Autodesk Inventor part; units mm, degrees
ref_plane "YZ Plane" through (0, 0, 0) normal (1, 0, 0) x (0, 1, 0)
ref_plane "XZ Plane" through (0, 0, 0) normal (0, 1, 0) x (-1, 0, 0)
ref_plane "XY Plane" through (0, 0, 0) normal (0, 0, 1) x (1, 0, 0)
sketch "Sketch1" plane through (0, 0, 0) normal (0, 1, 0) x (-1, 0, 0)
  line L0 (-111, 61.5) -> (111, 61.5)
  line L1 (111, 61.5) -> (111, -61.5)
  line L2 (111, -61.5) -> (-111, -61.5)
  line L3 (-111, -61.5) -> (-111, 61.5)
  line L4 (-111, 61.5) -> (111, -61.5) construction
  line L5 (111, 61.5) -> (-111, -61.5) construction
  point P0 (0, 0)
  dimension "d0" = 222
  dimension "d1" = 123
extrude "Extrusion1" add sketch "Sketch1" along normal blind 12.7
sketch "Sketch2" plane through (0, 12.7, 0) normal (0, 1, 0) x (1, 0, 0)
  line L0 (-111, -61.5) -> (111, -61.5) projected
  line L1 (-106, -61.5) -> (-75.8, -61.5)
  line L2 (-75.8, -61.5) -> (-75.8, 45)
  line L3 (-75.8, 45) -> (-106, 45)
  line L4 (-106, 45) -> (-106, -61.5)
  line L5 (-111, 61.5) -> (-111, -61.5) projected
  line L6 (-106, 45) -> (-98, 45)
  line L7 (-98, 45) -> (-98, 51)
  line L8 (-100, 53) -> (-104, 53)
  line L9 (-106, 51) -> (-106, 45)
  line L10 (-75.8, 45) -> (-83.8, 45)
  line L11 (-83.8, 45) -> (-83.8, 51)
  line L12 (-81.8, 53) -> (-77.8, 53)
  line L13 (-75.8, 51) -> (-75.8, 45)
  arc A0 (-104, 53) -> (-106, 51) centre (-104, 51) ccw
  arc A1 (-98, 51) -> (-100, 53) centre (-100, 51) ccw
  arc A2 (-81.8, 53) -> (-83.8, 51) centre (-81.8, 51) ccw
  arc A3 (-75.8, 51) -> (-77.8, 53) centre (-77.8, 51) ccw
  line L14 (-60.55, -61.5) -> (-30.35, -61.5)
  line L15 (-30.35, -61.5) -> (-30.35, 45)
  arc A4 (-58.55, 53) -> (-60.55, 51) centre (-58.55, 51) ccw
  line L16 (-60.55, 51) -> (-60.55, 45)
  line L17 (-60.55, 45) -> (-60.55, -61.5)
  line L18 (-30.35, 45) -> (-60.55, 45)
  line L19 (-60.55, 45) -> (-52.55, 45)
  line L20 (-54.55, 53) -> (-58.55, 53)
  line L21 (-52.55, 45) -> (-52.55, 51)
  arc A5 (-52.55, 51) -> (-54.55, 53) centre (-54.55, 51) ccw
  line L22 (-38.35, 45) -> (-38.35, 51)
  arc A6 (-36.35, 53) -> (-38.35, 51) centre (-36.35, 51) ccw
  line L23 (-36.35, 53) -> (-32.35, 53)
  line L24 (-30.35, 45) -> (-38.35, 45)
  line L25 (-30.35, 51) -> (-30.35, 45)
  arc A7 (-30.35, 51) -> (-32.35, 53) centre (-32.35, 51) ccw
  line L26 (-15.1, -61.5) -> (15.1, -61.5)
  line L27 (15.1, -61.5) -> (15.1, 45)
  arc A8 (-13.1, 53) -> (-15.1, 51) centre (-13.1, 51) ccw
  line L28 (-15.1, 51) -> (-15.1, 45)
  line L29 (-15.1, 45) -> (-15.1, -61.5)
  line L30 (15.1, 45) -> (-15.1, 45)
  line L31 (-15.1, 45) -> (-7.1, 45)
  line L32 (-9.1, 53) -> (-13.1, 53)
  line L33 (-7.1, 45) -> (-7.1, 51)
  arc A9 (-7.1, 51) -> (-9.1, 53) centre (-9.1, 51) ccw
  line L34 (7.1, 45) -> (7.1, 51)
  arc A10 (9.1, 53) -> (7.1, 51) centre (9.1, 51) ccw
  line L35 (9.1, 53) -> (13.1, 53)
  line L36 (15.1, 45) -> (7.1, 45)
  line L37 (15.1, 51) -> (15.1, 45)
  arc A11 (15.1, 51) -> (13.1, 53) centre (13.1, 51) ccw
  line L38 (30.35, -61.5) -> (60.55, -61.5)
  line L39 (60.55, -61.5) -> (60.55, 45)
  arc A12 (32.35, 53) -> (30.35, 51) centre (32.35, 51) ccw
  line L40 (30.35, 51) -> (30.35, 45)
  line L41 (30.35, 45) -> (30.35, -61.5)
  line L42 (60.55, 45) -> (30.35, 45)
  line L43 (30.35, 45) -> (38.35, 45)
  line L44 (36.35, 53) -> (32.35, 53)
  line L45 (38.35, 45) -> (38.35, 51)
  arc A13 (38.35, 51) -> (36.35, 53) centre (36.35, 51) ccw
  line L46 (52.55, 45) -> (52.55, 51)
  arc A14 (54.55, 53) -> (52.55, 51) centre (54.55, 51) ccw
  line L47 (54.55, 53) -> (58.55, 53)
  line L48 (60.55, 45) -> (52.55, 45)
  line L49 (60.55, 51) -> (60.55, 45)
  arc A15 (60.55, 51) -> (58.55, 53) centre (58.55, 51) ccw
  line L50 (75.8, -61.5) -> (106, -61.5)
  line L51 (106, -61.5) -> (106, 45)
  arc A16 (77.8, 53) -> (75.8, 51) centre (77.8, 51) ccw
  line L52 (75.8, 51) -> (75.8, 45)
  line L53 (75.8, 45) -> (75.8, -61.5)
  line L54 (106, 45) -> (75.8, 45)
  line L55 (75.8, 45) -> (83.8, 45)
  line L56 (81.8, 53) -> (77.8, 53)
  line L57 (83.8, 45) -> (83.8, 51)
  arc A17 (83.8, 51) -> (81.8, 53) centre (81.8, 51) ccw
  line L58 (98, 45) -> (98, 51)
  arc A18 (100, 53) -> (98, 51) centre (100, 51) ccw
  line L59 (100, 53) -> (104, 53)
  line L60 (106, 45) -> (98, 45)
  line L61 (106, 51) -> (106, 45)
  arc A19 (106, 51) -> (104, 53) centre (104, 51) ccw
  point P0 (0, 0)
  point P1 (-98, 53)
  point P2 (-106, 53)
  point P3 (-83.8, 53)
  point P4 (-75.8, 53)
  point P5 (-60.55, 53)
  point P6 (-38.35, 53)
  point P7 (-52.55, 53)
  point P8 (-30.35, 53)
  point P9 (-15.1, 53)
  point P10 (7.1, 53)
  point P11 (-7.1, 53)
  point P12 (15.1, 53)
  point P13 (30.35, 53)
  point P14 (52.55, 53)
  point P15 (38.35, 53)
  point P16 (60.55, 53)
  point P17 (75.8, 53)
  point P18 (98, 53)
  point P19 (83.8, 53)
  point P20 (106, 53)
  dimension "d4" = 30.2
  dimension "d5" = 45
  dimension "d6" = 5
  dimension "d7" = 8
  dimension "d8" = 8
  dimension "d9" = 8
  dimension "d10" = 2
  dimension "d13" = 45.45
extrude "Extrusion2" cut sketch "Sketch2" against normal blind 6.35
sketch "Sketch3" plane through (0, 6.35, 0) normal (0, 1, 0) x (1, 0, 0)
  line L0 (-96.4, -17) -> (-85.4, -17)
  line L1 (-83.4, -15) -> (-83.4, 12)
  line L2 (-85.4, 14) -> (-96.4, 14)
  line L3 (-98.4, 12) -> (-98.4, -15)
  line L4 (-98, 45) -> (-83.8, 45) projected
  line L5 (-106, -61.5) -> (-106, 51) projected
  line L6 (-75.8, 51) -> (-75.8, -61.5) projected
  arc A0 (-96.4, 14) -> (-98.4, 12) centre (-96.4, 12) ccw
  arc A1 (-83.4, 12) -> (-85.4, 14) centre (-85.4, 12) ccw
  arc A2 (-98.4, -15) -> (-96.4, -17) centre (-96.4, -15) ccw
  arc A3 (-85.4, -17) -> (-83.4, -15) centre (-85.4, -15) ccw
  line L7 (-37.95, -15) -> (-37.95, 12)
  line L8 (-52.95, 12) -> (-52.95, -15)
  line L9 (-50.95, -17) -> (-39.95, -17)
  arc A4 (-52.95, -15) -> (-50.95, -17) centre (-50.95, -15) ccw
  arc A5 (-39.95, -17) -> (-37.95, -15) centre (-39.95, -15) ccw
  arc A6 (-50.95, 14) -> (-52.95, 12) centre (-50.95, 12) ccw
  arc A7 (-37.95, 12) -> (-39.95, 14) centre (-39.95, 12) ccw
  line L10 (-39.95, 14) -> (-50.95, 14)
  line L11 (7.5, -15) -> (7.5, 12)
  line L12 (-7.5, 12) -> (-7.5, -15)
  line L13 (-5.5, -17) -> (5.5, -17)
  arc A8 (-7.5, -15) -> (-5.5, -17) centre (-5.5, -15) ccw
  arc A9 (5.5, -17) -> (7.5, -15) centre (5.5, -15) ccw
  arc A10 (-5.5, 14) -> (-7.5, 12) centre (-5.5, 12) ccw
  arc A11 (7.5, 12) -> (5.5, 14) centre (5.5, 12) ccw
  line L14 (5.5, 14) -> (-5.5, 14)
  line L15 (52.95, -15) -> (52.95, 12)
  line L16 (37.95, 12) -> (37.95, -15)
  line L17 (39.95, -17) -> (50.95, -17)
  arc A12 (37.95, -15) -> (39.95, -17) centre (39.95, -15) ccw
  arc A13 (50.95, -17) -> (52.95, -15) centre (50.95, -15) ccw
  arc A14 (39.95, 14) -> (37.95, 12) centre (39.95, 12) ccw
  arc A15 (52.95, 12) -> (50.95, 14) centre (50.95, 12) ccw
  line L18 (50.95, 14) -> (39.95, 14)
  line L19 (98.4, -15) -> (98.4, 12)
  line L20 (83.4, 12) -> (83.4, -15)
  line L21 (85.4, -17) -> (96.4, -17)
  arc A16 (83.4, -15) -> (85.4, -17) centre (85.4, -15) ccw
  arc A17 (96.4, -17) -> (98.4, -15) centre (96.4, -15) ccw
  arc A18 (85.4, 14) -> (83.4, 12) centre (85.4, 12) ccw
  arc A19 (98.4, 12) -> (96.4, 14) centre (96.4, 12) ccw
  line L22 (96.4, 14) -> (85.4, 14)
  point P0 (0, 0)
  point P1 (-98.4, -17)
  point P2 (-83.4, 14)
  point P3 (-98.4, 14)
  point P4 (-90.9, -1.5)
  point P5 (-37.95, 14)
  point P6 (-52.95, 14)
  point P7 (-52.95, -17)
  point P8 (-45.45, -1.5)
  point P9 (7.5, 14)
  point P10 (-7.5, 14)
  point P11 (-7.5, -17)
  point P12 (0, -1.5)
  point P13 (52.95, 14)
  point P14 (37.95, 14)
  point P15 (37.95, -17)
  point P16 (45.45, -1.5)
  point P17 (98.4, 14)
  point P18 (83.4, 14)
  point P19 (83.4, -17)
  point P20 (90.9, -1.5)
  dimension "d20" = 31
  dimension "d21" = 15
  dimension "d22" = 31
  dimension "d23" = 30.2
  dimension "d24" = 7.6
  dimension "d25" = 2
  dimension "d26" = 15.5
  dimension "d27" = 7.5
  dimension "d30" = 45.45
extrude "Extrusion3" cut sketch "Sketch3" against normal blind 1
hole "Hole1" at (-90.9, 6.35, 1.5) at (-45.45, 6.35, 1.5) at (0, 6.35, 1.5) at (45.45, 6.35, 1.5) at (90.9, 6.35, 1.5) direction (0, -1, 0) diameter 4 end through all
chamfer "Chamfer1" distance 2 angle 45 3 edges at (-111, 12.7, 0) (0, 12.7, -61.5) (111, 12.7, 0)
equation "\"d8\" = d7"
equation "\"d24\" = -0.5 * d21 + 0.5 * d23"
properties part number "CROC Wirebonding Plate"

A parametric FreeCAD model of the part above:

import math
import FreeCAD as App
import Part
import Sketcher

V = App.Vector


def edges_at(feature, points):
    """Names of the edges that pass closest to the given points."""
    edges = feature.Shape.Edges
    near = lambda p: min(range(len(edges)), key=lambda i: edges[i].distToShape(Part.Vertex(*p))[0])
    return sorted({f"Edge{near(p) + 1}" for p in points})


def add_polygon(sketch, points):
    """Adds a closed chain of lines whose ends are joined by coincident constraints."""
    first, n = sketch.GeometryCount, len(points)
    for a, b in zip(points, points[1:] + points[:1]):
        sketch.addGeometry(Part.LineSegment(App.Vector(*a, 0), App.Vector(*b, 0)), False)
    for i in range(n):
        sketch.addConstraint(Sketcher.Constraint("Coincident", first + i, 2, first + (i + 1) % n, 1))

doc = App.newDocument("Part")
params = doc.addObject("Spreadsheet::Sheet", "Params")
for row, (alias, value) in enumerate([
    ("sketch1_width", "222 mm"),
    ("sketch1_height", "123 mm"),
    ("pad1_length", "12.7 mm"),
    ("sketch2_radius", "2 mm"),
    ("sketch2_width", "30.2 mm"),
    ("sketch2_width2", "4 mm"),
    ("sketch2_height", "6 mm"),
    ("sketch2_height2", "112.5 mm"),
    ("pocket1_length", "6.35 mm"),
    ("sketch3_radius", "2 mm"),
    ("sketch3_height", "27 mm"),
    ("pocket2_length", "1 mm"),
    ("sketch4_diameter", "4 mm"),
    ("hole_diameter", "4 mm"),
    ("chamfer_size", "2 mm"),
], start=1):
    params.set(f"A{row}", alias)
    params.set(f"B{row}", "=" + value)
    params.setAlias(f"B{row}", alias)

body = doc.addObject("PartDesign::Body", "Body")

# Sketch on XZ plane
sketch1 = doc.addObject("Sketcher::SketchObject", "Sketch")
body.addObject(sketch1)
sketch1.AttachmentSupport = (doc.XZ_Plane, [""])
sketch1.MapMode = "FlatFace"
add_polygon(sketch1, [(-111, 61.5), (111, 61.5), (111, -61.5), (-111, -61.5)])  # lines 0-3
sketch1.addConstraint([
    Sketcher.Constraint("Horizontal", 0),
    Sketcher.Constraint("Vertical", 1),
    Sketcher.Constraint("Horizontal", 2),
    Sketcher.Constraint("Vertical", 3),
    Sketcher.Constraint("Symmetric", 0, 2, 2, 2, -1, 1),
    Sketcher.Constraint("DistanceX", 0, 1, 0, 2, 222.0),
    Sketcher.Constraint("DistanceY", 1, 2, 1, 1, 123.0),
])
sketch1.setExpression("Constraints[9]", "Params.sketch1_width")
sketch1.setExpression("Constraints[10]", "Params.sketch1_height")
pad1 = doc.addObject("PartDesign::Pad", "Pad")
body.addObject(pad1)
pad1.Profile = sketch1
pad1.setExpression("Length", "Params.pad1_length")
pad1.Reversed = True

# Sketch on XZ plane
sketch2 = doc.addObject("Sketcher::SketchObject", "Sketch001")
body.addObject(sketch2)
sketch2.AttachmentSupport = (doc.XZ_Plane, [""])
sketch2.MapMode = "FlatFace"
sketch2.AttachmentOffset = App.Placement(V(0, 0, -12.7), App.Rotation())
sketch2.addGeometry([
    Part.LineSegment(V(-106, 61.5, 0), V(-75.8, 61.5, 0)),  # 0
    Part.LineSegment(V(-75.8, 61.5, 0), V(-75.8, -51, 0)),  # 1
    Part.ArcOfCircle(Part.Circle(V(-77.8, -51, 0), V(0, 0, 1), 2), math.radians(-90), math.radians(0)),  # 2
    Part.LineSegment(V(-77.8, -53, 0), V(-81.8, -53, 0)),  # 3
    Part.ArcOfCircle(Part.Circle(V(-81.8, -51, 0), V(0, 0, 1), 2), math.radians(180), math.radians(270)),  # 4
    Part.LineSegment(V(-83.8, -51, 0), V(-83.8, -45, 0)),  # 5
    Part.LineSegment(V(-83.8, -45, 0), V(-98, -45, 0)),  # 6
    Part.LineSegment(V(-98, -45, 0), V(-98, -51, 0)),  # 7
    Part.ArcOfCircle(Part.Circle(V(-100, -51, 0), V(0, 0, 1), 2), math.radians(-90), math.radians(0)),  # 8
    Part.LineSegment(V(-100, -53, 0), V(-104, -53, 0)),  # 9
    Part.ArcOfCircle(Part.Circle(V(-104, -51, 0), V(0, 0, 1), 2), math.radians(180), math.radians(270)),  # 10
    Part.LineSegment(V(-106, -51, 0), V(-106, 61.5, 0)),  # 11
    Part.LineSegment(V(75.8, 61.5, 0), V(106, 61.5, 0)),  # 12
    Part.LineSegment(V(106, 61.5, 0), V(106, -51, 0)),  # 13
    Part.ArcOfCircle(Part.Circle(V(104, -51, 0), V(0, 0, 1), 2), math.radians(-90), math.radians(0)),  # 14
    Part.LineSegment(V(104, -53, 0), V(100, -53, 0)),  # 15
    Part.ArcOfCircle(Part.Circle(V(100, -51, 0), V(0, 0, 1), 2), math.radians(180), math.radians(270)),  # 16
    Part.LineSegment(V(98, -51, 0), V(98, -45, 0)),  # 17
    Part.LineSegment(V(98, -45, 0), V(83.8, -45, 0)),  # 18
    Part.LineSegment(V(83.8, -45, 0), V(83.8, -51, 0)),  # 19
    Part.ArcOfCircle(Part.Circle(V(81.8, -51, 0), V(0, 0, 1), 2), math.radians(-90), math.radians(0)),  # 20
    Part.LineSegment(V(81.8, -53, 0), V(77.8, -53, 0)),  # 21
    Part.ArcOfCircle(Part.Circle(V(77.8, -51, 0), V(0, 0, 1), 2), math.radians(180), math.radians(270)),  # 22
    Part.LineSegment(V(75.8, -51, 0), V(75.8, 61.5, 0)),  # 23
    Part.LineSegment(V(30.35, 61.5, 0), V(60.55, 61.5, 0)),  # 24
    Part.LineSegment(V(60.55, 61.5, 0), V(60.55, -51, 0)),  # 25
    Part.ArcOfCircle(Part.Circle(V(58.55, -51, 0), V(0, 0, 1), 2), math.radians(-90), math.radians(0)),  # 26
    Part.LineSegment(V(58.55, -53, 0), V(54.55, -53, 0)),  # 27
    Part.ArcOfCircle(Part.Circle(V(54.55, -51, 0), V(0, 0, 1), 2), math.radians(180), math.radians(270)),  # 28
    Part.LineSegment(V(52.55, -51, 0), V(52.55, -45, 0)),  # 29
    Part.LineSegment(V(52.55, -45, 0), V(38.35, -45, 0)),  # 30
    Part.LineSegment(V(38.35, -45, 0), V(38.35, -51, 0)),  # 31
    Part.ArcOfCircle(Part.Circle(V(36.35, -51, 0), V(0, 0, 1), 2), math.radians(-90), math.radians(0)),  # 32
    Part.LineSegment(V(36.35, -53, 0), V(32.35, -53, 0)),  # 33
    Part.ArcOfCircle(Part.Circle(V(32.35, -51, 0), V(0, 0, 1), 2), math.radians(180), math.radians(270)),  # 34
    Part.LineSegment(V(30.35, -51, 0), V(30.35, 61.5, 0)),  # 35
    Part.LineSegment(V(-15.1, 61.5, 0), V(15.1, 61.5, 0)),  # 36
    Part.LineSegment(V(15.1, 61.5, 0), V(15.1, -51, 0)),  # 37
    Part.ArcOfCircle(Part.Circle(V(13.1, -51, 0), V(0, 0, 1), 2), math.radians(-90), math.radians(0)),  # 38
    Part.LineSegment(V(13.1, -53, 0), V(9.1, -53, 0)),  # 39
    Part.ArcOfCircle(Part.Circle(V(9.1, -51, 0), V(0, 0, 1), 2), math.radians(180), math.radians(270)),  # 40
    Part.LineSegment(V(7.1, -51, 0), V(7.1, -45, 0)),  # 41
    Part.LineSegment(V(7.1, -45, 0), V(-7.1, -45, 0)),  # 42
    Part.LineSegment(V(-7.1, -45, 0), V(-7.1, -51, 0)),  # 43
    Part.ArcOfCircle(Part.Circle(V(-9.1, -51, 0), V(0, 0, 1), 2), math.radians(-90), math.radians(0)),  # 44
    Part.LineSegment(V(-9.1, -53, 0), V(-13.1, -53, 0)),  # 45
    Part.ArcOfCircle(Part.Circle(V(-13.1, -51, 0), V(0, 0, 1), 2), math.radians(180), math.radians(270)),  # 46
    Part.LineSegment(V(-15.1, -51, 0), V(-15.1, 61.5, 0)),  # 47
    Part.LineSegment(V(-60.55, 61.5, 0), V(-30.35, 61.5, 0)),  # 48
    Part.LineSegment(V(-30.35, 61.5, 0), V(-30.35, -51, 0)),  # 49
    Part.ArcOfCircle(Part.Circle(V(-32.35, -51, 0), V(0, 0, 1), 2), math.radians(-90), math.radians(0)),  # 50
    Part.LineSegment(V(-32.35, -53, 0), V(-36.35, -53, 0)),  # 51
    Part.ArcOfCircle(Part.Circle(V(-36.35, -51, 0), V(0, 0, 1), 2), math.radians(180), math.radians(270)),  # 52
    Part.LineSegment(V(-38.35, -51, 0), V(-38.35, -45, 0)),  # 53
    Part.LineSegment(V(-38.35, -45, 0), V(-52.55, -45, 0)),  # 54
    Part.LineSegment(V(-52.55, -45, 0), V(-52.55, -51, 0)),  # 55
    Part.ArcOfCircle(Part.Circle(V(-54.55, -51, 0), V(0, 0, 1), 2), math.radians(-90), math.radians(0)),  # 56
    Part.LineSegment(V(-54.55, -53, 0), V(-58.55, -53, 0)),  # 57
    Part.ArcOfCircle(Part.Circle(V(-58.55, -51, 0), V(0, 0, 1), 2), math.radians(180), math.radians(270)),  # 58
    Part.LineSegment(V(-60.55, -51, 0), V(-60.55, 61.5, 0)),  # 59
], False)
sketch2.addConstraint([
    Sketcher.Constraint("Coincident", 0, 2, 1, 1),
    Sketcher.Constraint("Tangent", 1, 2, 2, 2),
    Sketcher.Constraint("Tangent", 2, 1, 3, 1),
    Sketcher.Constraint("Tangent", 3, 2, 4, 2),
    Sketcher.Constraint("Tangent", 4, 1, 5, 1),
    Sketcher.Constraint("Coincident", 5, 2, 6, 1),
    Sketcher.Constraint("Coincident", 6, 2, 7, 1),
    Sketcher.Constraint("Tangent", 7, 2, 8, 2),
    Sketcher.Constraint("Tangent", 8, 1, 9, 1),
    Sketcher.Constraint("Tangent", 9, 2, 10, 2),
    Sketcher.Constraint("Tangent", 10, 1, 11, 1),
    Sketcher.Constraint("Coincident", 11, 2, 0, 1),
    Sketcher.Constraint("Coincident", 12, 2, 13, 1),
    Sketcher.Constraint("Tangent", 13, 2, 14, 2),
    Sketcher.Constraint("Tangent", 14, 1, 15, 1),
    Sketcher.Constraint("Tangent", 15, 2, 16, 2),
    Sketcher.Constraint("Tangent", 16, 1, 17, 1),
    Sketcher.Constraint("Coincident", 17, 2, 18, 1),
    Sketcher.Constraint("Coincident", 18, 2, 19, 1),
    Sketcher.Constraint("Tangent", 19, 2, 20, 2),
    Sketcher.Constraint("Tangent", 20, 1, 21, 1),
    Sketcher.Constraint("Tangent", 21, 2, 22, 2),
    Sketcher.Constraint("Tangent", 22, 1, 23, 1),
    Sketcher.Constraint("Coincident", 23, 2, 12, 1),
    Sketcher.Constraint("Coincident", 24, 2, 25, 1),
    Sketcher.Constraint("Tangent", 25, 2, 26, 2),
    Sketcher.Constraint("Tangent", 26, 1, 27, 1),
    Sketcher.Constraint("Tangent", 27, 2, 28, 2),
    Sketcher.Constraint("Tangent", 28, 1, 29, 1),
    Sketcher.Constraint("Coincident", 29, 2, 30, 1),
    Sketcher.Constraint("Coincident", 30, 2, 31, 1),
    Sketcher.Constraint("Tangent", 31, 2, 32, 2),
    Sketcher.Constraint("Tangent", 32, 1, 33, 1),
    Sketcher.Constraint("Tangent", 33, 2, 34, 2),
    Sketcher.Constraint("Tangent", 34, 1, 35, 1),
    Sketcher.Constraint("Coincident", 35, 2, 24, 1),
    Sketcher.Constraint("Coincident", 36, 2, 37, 1),
    Sketcher.Constraint("Tangent", 37, 2, 38, 2),
    Sketcher.Constraint("Tangent", 38, 1, 39, 1),
    Sketcher.Constraint("Tangent", 39, 2, 40, 2),
    Sketcher.Constraint("Tangent", 40, 1, 41, 1),
    Sketcher.Constraint("Coincident", 41, 2, 42, 1),
    Sketcher.Constraint("Coincident", 42, 2, 43, 1),
    Sketcher.Constraint("Tangent", 43, 2, 44, 2),
    Sketcher.Constraint("Tangent", 44, 1, 45, 1),
    Sketcher.Constraint("Tangent", 45, 2, 46, 2),
    Sketcher.Constraint("Tangent", 46, 1, 47, 1),
    Sketcher.Constraint("Coincident", 47, 2, 36, 1),
    Sketcher.Constraint("Coincident", 48, 2, 49, 1),
    Sketcher.Constraint("Tangent", 49, 2, 50, 2),
    Sketcher.Constraint("Tangent", 50, 1, 51, 1),
    Sketcher.Constraint("Tangent", 51, 2, 52, 2),
    Sketcher.Constraint("Tangent", 52, 1, 53, 1),
    Sketcher.Constraint("Coincident", 53, 2, 54, 1),
    Sketcher.Constraint("Coincident", 54, 2, 55, 1),
    Sketcher.Constraint("Tangent", 55, 2, 56, 2),
    Sketcher.Constraint("Tangent", 56, 1, 57, 1),
    Sketcher.Constraint("Tangent", 57, 2, 58, 2),
    Sketcher.Constraint("Tangent", 58, 1, 59, 1),
    Sketcher.Constraint("Coincident", 59, 2, 48, 1),
    Sketcher.Constraint("Horizontal", 0),
    Sketcher.Constraint("Vertical", 1),
    Sketcher.Constraint("Horizontal", 3),
    Sketcher.Constraint("Vertical", 5),
    Sketcher.Constraint("Horizontal", 6),
    Sketcher.Constraint("Vertical", 7),
    Sketcher.Constraint("Horizontal", 9),
    Sketcher.Constraint("Vertical", 11),
    Sketcher.Constraint("Horizontal", 12),
    Sketcher.Constraint("Vertical", 13),
    Sketcher.Constraint("Horizontal", 15),
    Sketcher.Constraint("Vertical", 17),
    Sketcher.Constraint("Horizontal", 18),
    Sketcher.Constraint("Vertical", 19),
    Sketcher.Constraint("Horizontal", 21),
    Sketcher.Constraint("Vertical", 23),
    Sketcher.Constraint("Horizontal", 24),
    Sketcher.Constraint("Vertical", 25),
    Sketcher.Constraint("Horizontal", 27),
    Sketcher.Constraint("Vertical", 29),
    Sketcher.Constraint("Horizontal", 30),
    Sketcher.Constraint("Vertical", 31),
    Sketcher.Constraint("Horizontal", 33),
    Sketcher.Constraint("Vertical", 35),
    Sketcher.Constraint("Horizontal", 36),
    Sketcher.Constraint("Vertical", 37),
    Sketcher.Constraint("Horizontal", 39),
    Sketcher.Constraint("Vertical", 41),
    Sketcher.Constraint("Horizontal", 42),
    Sketcher.Constraint("Vertical", 43),
    Sketcher.Constraint("Horizontal", 45),
    Sketcher.Constraint("Vertical", 47),
    Sketcher.Constraint("Horizontal", 48),
    Sketcher.Constraint("Vertical", 49),
    Sketcher.Constraint("Horizontal", 51),
    Sketcher.Constraint("Vertical", 53),
    Sketcher.Constraint("Horizontal", 54),
    Sketcher.Constraint("Vertical", 55),
    Sketcher.Constraint("Horizontal", 57),
    Sketcher.Constraint("Vertical", 59),
    Sketcher.Constraint("Equal", 2, 4),
    Sketcher.Constraint("Equal", 4, 8),
    Sketcher.Constraint("Equal", 8, 10),
    Sketcher.Constraint("Equal", 10, 14),
    Sketcher.Constraint("Equal", 14, 16),
    Sketcher.Constraint("Equal", 16, 20),
    Sketcher.Constraint("Equal", 20, 22),
    Sketcher.Constraint("Equal", 22, 26),
    Sketcher.Constraint("Equal", 26, 28),
    Sketcher.Constraint("Equal", 28, 32),
    Sketcher.Constraint("Equal", 32, 34),
    Sketcher.Constraint("Equal", 34, 38),
    Sketcher.Constraint("Equal", 38, 40),
    Sketcher.Constraint("Equal", 40, 44),
    Sketcher.Constraint("Equal", 44, 46),
    Sketcher.Constraint("Equal", 46, 50),
    Sketcher.Constraint("Equal", 50, 52),
    Sketcher.Constraint("Equal", 52, 56),
    Sketcher.Constraint("Equal", 56, 58),
    Sketcher.Constraint("Symmetric", 10, 3, 14, 3, -2),
    Sketcher.Constraint("Symmetric", 4, 3, 20, 3, -2),
    Sketcher.Constraint("Symmetric", 40, 3, 44, 3, -2),
    Sketcher.Constraint("Symmetric", 34, 3, 50, 3, -2),
    Sketcher.Constraint("Symmetric", 28, 3, 56, 3, -2),
    Sketcher.Constraint("Symmetric", 6, 2, 17, 2, -2),
    Sketcher.Constraint("Symmetric", 0, 2, 23, 2, -2),
    Sketcher.Constraint("Symmetric", 30, 2, 53, 2, -2),
    Sketcher.Constraint("Symmetric", 24, 2, 59, 2, -2),
    Sketcher.Constraint("Horizontal", 4, 3, 8, 3),
    Sketcher.Constraint("Horizontal", 22, 3, 26, 3),
    Sketcher.Constraint("Horizontal", 28, 3, 32, 3),
    Sketcher.Constraint("Horizontal", 34, 3, 38, 3),
    Sketcher.Constraint("Horizontal", 23, 2, 24, 2),
    Sketcher.Constraint("Horizontal", 18, 2, 29, 2),
    Sketcher.Constraint("Horizontal", 35, 2, 36, 2),
    Sketcher.Constraint("Horizontal", 30, 2, 41, 2),
    Sketcher.Constraint("Equal", 3, 9),
    Sketcher.Constraint("Equal", 12, 24),
    Sketcher.Constraint("Equal", 21, 27),
    Sketcher.Constraint("Equal", 18, 30),
    Sketcher.Constraint("Equal", 24, 36),
    Sketcher.Constraint("Equal", 33, 39),
    Sketcher.Constraint("Equal", 30, 42),
    Sketcher.Constraint("Radius", 2, 2.0),
    Sketcher.Constraint("DistanceX", 0, 1, 0, 2, 30.2),
    Sketcher.Constraint("DistanceY", 5, 2, -1, 1, 45.0),
    Sketcher.Constraint("DistanceX", 3, 2, 3, 1, 4.0),
    Sketcher.Constraint("DistanceY", 5, 1, 5, 2, 6.0),
    Sketcher.Constraint("DistanceY", 1, 2, 1, 1, 112.5),
    Sketcher.Constraint("DistanceX", 8, 3, -1, 1, 100.0),
    Sketcher.Constraint("DistanceX", -1, 1, 26, 3, 58.55),
])
sketch2.setExpression("Constraints[143]", "Params.sketch2_radius")
sketch2.setExpression("Constraints[144]", "Params.sketch2_width")
sketch2.setExpression("Constraints[146]", "Params.sketch2_width2")
sketch2.setExpression("Constraints[147]", "Params.sketch2_height")
sketch2.setExpression("Constraints[148]", "Params.sketch2_height2")
pocket1 = doc.addObject("PartDesign::Pocket", "Pocket")
body.addObject(pocket1)
pocket1.Profile = sketch2
pocket1.setExpression("Length", "Params.pocket1_length")
pocket1.Reversed = True

# Sketch on XZ plane
sketch3 = doc.addObject("Sketcher::SketchObject", "Sketch002")
body.addObject(sketch3)
sketch3.AttachmentSupport = (doc.XZ_Plane, [""])
sketch3.MapMode = "FlatFace"
sketch3.AttachmentOffset = App.Placement(V(0, 0, -6.35), App.Rotation())
sketch3.addGeometry([
    Part.ArcOfCircle(Part.Circle(V(-96.4, 15, 0), V(0, 0, 1), 2), math.radians(90), math.radians(180)),  # 0
    Part.LineSegment(V(-96.4, 17, 0), V(-85.4, 17, 0)),  # 1
    Part.ArcOfCircle(Part.Circle(V(-85.4, 15, 0), V(0, 0, 1), 2), math.radians(0), math.radians(90)),  # 2
    Part.LineSegment(V(-83.4, 15, 0), V(-83.4, -12, 0)),  # 3
    Part.ArcOfCircle(Part.Circle(V(-85.4, -12, 0), V(0, 0, 1), 2), math.radians(-90), math.radians(0)),  # 4
    Part.LineSegment(V(-85.4, -14, 0), V(-96.4, -14, 0)),  # 5
    Part.ArcOfCircle(Part.Circle(V(-96.4, -12, 0), V(0, 0, 1), 2), math.radians(180), math.radians(270)),  # 6
    Part.LineSegment(V(-98.4, -12, 0), V(-98.4, 15, 0)),  # 7
    Part.ArcOfCircle(Part.Circle(V(-39.95, 15, 0), V(0, 0, 1), 2), math.radians(0), math.radians(90)),  # 8
    Part.LineSegment(V(-37.95, 15, 0), V(-37.95, -12, 0)),  # 9
    Part.ArcOfCircle(Part.Circle(V(-39.95, -12, 0), V(0, 0, 1), 2), math.radians(-90), math.radians(0)),  # 10
    Part.LineSegment(V(-39.95, -14, 0), V(-50.95, -14, 0)),  # 11
    Part.ArcOfCircle(Part.Circle(V(-50.95, -12, 0), V(0, 0, 1), 2), math.radians(180), math.radians(270)),  # 12
    Part.LineSegment(V(-52.95, -12, 0), V(-52.95, 15, 0)),  # 13
    Part.ArcOfCircle(Part.Circle(V(-50.95, 15, 0), V(0, 0, 1), 2), math.radians(90), math.radians(180)),  # 14
    Part.LineSegment(V(-50.95, 17, 0), V(-39.95, 17, 0)),  # 15
    Part.ArcOfCircle(Part.Circle(V(5.5, 15, 0), V(0, 0, 1), 2), math.radians(0), math.radians(90)),  # 16
    Part.LineSegment(V(7.5, 15, 0), V(7.5, -12, 0)),  # 17
    Part.ArcOfCircle(Part.Circle(V(5.5, -12, 0), V(0, 0, 1), 2), math.radians(-90), math.radians(0)),  # 18
    Part.LineSegment(V(5.5, -14, 0), V(-5.5, -14, 0)),  # 19
    Part.ArcOfCircle(Part.Circle(V(-5.5, -12, 0), V(0, 0, 1), 2), math.radians(180), math.radians(270)),  # 20
    Part.LineSegment(V(-7.5, -12, 0), V(-7.5, 15, 0)),  # 21
    Part.ArcOfCircle(Part.Circle(V(-5.5, 15, 0), V(0, 0, 1), 2), math.radians(90), math.radians(180)),  # 22
    Part.LineSegment(V(-5.5, 17, 0), V(5.5, 17, 0)),  # 23
    Part.ArcOfCircle(Part.Circle(V(50.95, 15, 0), V(0, 0, 1), 2), math.radians(0), math.radians(90)),  # 24
    Part.LineSegment(V(52.95, 15, 0), V(52.95, -12, 0)),  # 25
    Part.ArcOfCircle(Part.Circle(V(50.95, -12, 0), V(0, 0, 1), 2), math.radians(-90), math.radians(0)),  # 26
    Part.LineSegment(V(50.95, -14, 0), V(39.95, -14, 0)),  # 27
    Part.ArcOfCircle(Part.Circle(V(39.95, -12, 0), V(0, 0, 1), 2), math.radians(180), math.radians(270)),  # 28
    Part.LineSegment(V(37.95, -12, 0), V(37.95, 15, 0)),  # 29
    Part.ArcOfCircle(Part.Circle(V(39.95, 15, 0), V(0, 0, 1), 2), math.radians(90), math.radians(180)),  # 30
    Part.LineSegment(V(39.95, 17, 0), V(50.95, 17, 0)),  # 31
    Part.ArcOfCircle(Part.Circle(V(96.4, 15, 0), V(0, 0, 1), 2), math.radians(0), math.radians(90)),  # 32
    Part.LineSegment(V(98.4, 15, 0), V(98.4, -12, 0)),  # 33
    Part.ArcOfCircle(Part.Circle(V(96.4, -12, 0), V(0, 0, 1), 2), math.radians(-90), math.radians(0)),  # 34
    Part.LineSegment(V(96.4, -14, 0), V(85.4, -14, 0)),  # 35
    Part.ArcOfCircle(Part.Circle(V(85.4, -12, 0), V(0, 0, 1), 2), math.radians(180), math.radians(270)),  # 36
    Part.LineSegment(V(83.4, -12, 0), V(83.4, 15, 0)),  # 37
    Part.ArcOfCircle(Part.Circle(V(85.4, 15, 0), V(0, 0, 1), 2), math.radians(90), math.radians(180)),  # 38
    Part.LineSegment(V(85.4, 17, 0), V(96.4, 17, 0)),  # 39
], False)
sketch3.addConstraint([
    Sketcher.Constraint("Tangent", 0, 1, 1, 1),
    Sketcher.Constraint("Tangent", 1, 2, 2, 2),
    Sketcher.Constraint("Tangent", 2, 1, 3, 1),
    Sketcher.Constraint("Tangent", 3, 2, 4, 2),
    Sketcher.Constraint("Tangent", 4, 1, 5, 1),
    Sketcher.Constraint("Tangent", 5, 2, 6, 2),
    Sketcher.Constraint("Tangent", 6, 1, 7, 1),
    Sketcher.Constraint("Tangent", 7, 2, 0, 2),
    Sketcher.Constraint("Tangent", 8, 1, 9, 1),
    Sketcher.Constraint("Tangent", 9, 2, 10, 2),
    Sketcher.Constraint("Tangent", 10, 1, 11, 1),
    Sketcher.Constraint("Tangent", 11, 2, 12, 2),
    Sketcher.Constraint("Tangent", 12, 1, 13, 1),
    Sketcher.Constraint("Tangent", 13, 2, 14, 2),
    Sketcher.Constraint("Tangent", 14, 1, 15, 1),
    Sketcher.Constraint("Tangent", 15, 2, 8, 2),
    Sketcher.Constraint("Tangent", 16, 1, 17, 1),
    Sketcher.Constraint("Tangent", 17, 2, 18, 2),
    Sketcher.Constraint("Tangent", 18, 1, 19, 1),
    Sketcher.Constraint("Tangent", 19, 2, 20, 2),
    Sketcher.Constraint("Tangent", 20, 1, 21, 1),
    Sketcher.Constraint("Tangent", 21, 2, 22, 2),
    Sketcher.Constraint("Tangent", 22, 1, 23, 1),
    Sketcher.Constraint("Tangent", 23, 2, 16, 2),
    Sketcher.Constraint("Tangent", 24, 1, 25, 1),
    Sketcher.Constraint("Tangent", 25, 2, 26, 2),
    Sketcher.Constraint("Tangent", 26, 1, 27, 1),
    Sketcher.Constraint("Tangent", 27, 2, 28, 2),
    Sketcher.Constraint("Tangent", 28, 1, 29, 1),
    Sketcher.Constraint("Tangent", 29, 2, 30, 2),
    Sketcher.Constraint("Tangent", 30, 1, 31, 1),
    Sketcher.Constraint("Tangent", 31, 2, 24, 2),
    Sketcher.Constraint("Tangent", 32, 1, 33, 1),
    Sketcher.Constraint("Tangent", 33, 2, 34, 2),
    Sketcher.Constraint("Tangent", 34, 1, 35, 1),
    Sketcher.Constraint("Tangent", 35, 2, 36, 2),
    Sketcher.Constraint("Tangent", 36, 1, 37, 1),
    Sketcher.Constraint("Tangent", 37, 2, 38, 2),
    Sketcher.Constraint("Tangent", 38, 1, 39, 1),
    Sketcher.Constraint("Tangent", 39, 2, 32, 2),
    Sketcher.Constraint("Horizontal", 1),
    Sketcher.Constraint("Vertical", 3),
    Sketcher.Constraint("Horizontal", 5),
    Sketcher.Constraint("Vertical", 7),
    Sketcher.Constraint("Vertical", 9),
    Sketcher.Constraint("Horizontal", 11),
    Sketcher.Constraint("Vertical", 13),
    Sketcher.Constraint("Horizontal", 15),
    Sketcher.Constraint("Vertical", 17),
    Sketcher.Constraint("Horizontal", 19),
    Sketcher.Constraint("Vertical", 21),
    Sketcher.Constraint("Horizontal", 23),
    Sketcher.Constraint("Vertical", 25),
    Sketcher.Constraint("Horizontal", 27),
    Sketcher.Constraint("Vertical", 29),
    Sketcher.Constraint("Horizontal", 31),
    Sketcher.Constraint("Vertical", 33),
    Sketcher.Constraint("Horizontal", 35),
    Sketcher.Constraint("Vertical", 37),
    Sketcher.Constraint("Horizontal", 39),
    Sketcher.Constraint("Equal", 0, 2),
    Sketcher.Constraint("Equal", 2, 4),
    Sketcher.Constraint("Equal", 4, 6),
    Sketcher.Constraint("Equal", 6, 8),
    Sketcher.Constraint("Equal", 8, 10),
    Sketcher.Constraint("Equal", 10, 12),
    Sketcher.Constraint("Equal", 12, 14),
    Sketcher.Constraint("Equal", 14, 16),
    Sketcher.Constraint("Equal", 16, 18),
    Sketcher.Constraint("Equal", 18, 20),
    Sketcher.Constraint("Equal", 20, 22),
    Sketcher.Constraint("Equal", 22, 24),
    Sketcher.Constraint("Equal", 24, 26),
    Sketcher.Constraint("Equal", 26, 28),
    Sketcher.Constraint("Equal", 28, 30),
    Sketcher.Constraint("Equal", 30, 32),
    Sketcher.Constraint("Equal", 32, 34),
    Sketcher.Constraint("Equal", 34, 36),
    Sketcher.Constraint("Equal", 36, 38),
    Sketcher.Constraint("Symmetric", 14, 3, 24, 3, -2),
    Sketcher.Constraint("Symmetric", 10, 3, 28, 3, -2),
    Sketcher.Constraint("Symmetric", 0, 3, 32, 3, -2),
    Sketcher.Constraint("Symmetric", 4, 3, 36, 3, -2),
    Sketcher.Constraint("Horizontal", 2, 3, 8, 3),
    Sketcher.Constraint("Horizontal", 6, 3, 10, 3),
    Sketcher.Constraint("Horizontal", 14, 3, 16, 3),
    Sketcher.Constraint("Horizontal", 12, 3, 18, 3),
    Sketcher.Constraint("Equal", 5, 11),
    Sketcher.Constraint("Equal", 15, 19),
    Sketcher.Constraint("Radius", 0, 2.0),
    Sketcher.Constraint("DistanceY", -1, 1, 0, 3, 15.0),
    Sketcher.Constraint("DistanceX", 6, 1, 3, 2, 15.0),
    Sketcher.Constraint("DistanceX", -1, 1, 16, 1, 7.5),
    Sketcher.Constraint("DistanceY", 3, 2, 3, 1, 27.0),
    Sketcher.Constraint("DistanceX", 2, 3, 8, 3, 45.45),
    Sketcher.Constraint("DistanceX", 8, 3, 16, 3, 45.45),
])
sketch3.setExpression("Constraints[89]", "Params.sketch3_radius")
sketch3.setExpression("Constraints[93]", "Params.sketch3_height")
pocket2 = doc.addObject("PartDesign::Pocket", "Pocket001")
body.addObject(pocket2)
pocket2.Profile = sketch3
pocket2.setExpression("Length", "Params.pocket2_length")
pocket2.Reversed = True

# Sketch on XZ plane
sketch4 = doc.addObject("Sketcher::SketchObject", "Sketch003")
body.addObject(sketch4)
sketch4.AttachmentSupport = (doc.XZ_Plane, [""])
sketch4.MapMode = "FlatFace"
sketch4.AttachmentOffset = App.Placement(V(0, 0, -6.35), App.Rotation())
sketch4.addGeometry([
    Part.Circle(V(-90.9, 1.5, 0), V(0, 0, 1), 2),  # 0
    Part.Circle(V(-45.45, 1.5, 0), V(0, 0, 1), 2),  # 1
    Part.Circle(V(0, 1.5, 0), V(0, 0, 1), 2),  # 2
    Part.Circle(V(45.45, 1.5, 0), V(0, 0, 1), 2),  # 3
    Part.Circle(V(90.9, 1.5, 0), V(0, 0, 1), 2),  # 4
], False)
sketch4.addConstraint([
    Sketcher.Constraint("Equal", 0, 1),
    Sketcher.Constraint("Equal", 1, 2),
    Sketcher.Constraint("Equal", 2, 3),
    Sketcher.Constraint("Equal", 3, 4),
    Sketcher.Constraint("Symmetric", 1, 3, 3, 3, -2),
    Sketcher.Constraint("Symmetric", 0, 3, 4, 3, -2),
    Sketcher.Constraint("PointOnObject", 2, 3, -2),
    Sketcher.Constraint("Horizontal", 0, 3, 1, 3),
    Sketcher.Constraint("Horizontal", 1, 3, 2, 3),
    Sketcher.Constraint("Diameter", 0, 4.0),
    Sketcher.Constraint("DistanceX", 0, 3, -1, 1, 90.9),
    Sketcher.Constraint("DistanceY", -1, 1, 0, 3, 1.5),
    Sketcher.Constraint("DistanceX", 1, 3, 3, 3, 90.9),
])
sketch4.setExpression("Constraints[9]", "Params.sketch4_diameter")
doc.recompute()
hole = doc.addObject("PartDesign::Hole", "Hole")
body.addObject(hole)
hole.Profile = sketch4
hole.ThreadType = "None"
hole.setExpression("Diameter", "Params.hole_diameter")
hole.DepthType = "ThroughAll"
hole.Reversed = True
doc.recompute()

chamfer = doc.addObject("PartDesign::Chamfer", "Chamfer")
body.addObject(chamfer)
chamfer.Base = (hole, edges_at(hole, [(-111, 12.7, 0), (0, 12.7, -61.5), (111, 12.7, 0)]))
chamfer.setExpression("Size", "Params.chamfer_size")

doc.recompute()
